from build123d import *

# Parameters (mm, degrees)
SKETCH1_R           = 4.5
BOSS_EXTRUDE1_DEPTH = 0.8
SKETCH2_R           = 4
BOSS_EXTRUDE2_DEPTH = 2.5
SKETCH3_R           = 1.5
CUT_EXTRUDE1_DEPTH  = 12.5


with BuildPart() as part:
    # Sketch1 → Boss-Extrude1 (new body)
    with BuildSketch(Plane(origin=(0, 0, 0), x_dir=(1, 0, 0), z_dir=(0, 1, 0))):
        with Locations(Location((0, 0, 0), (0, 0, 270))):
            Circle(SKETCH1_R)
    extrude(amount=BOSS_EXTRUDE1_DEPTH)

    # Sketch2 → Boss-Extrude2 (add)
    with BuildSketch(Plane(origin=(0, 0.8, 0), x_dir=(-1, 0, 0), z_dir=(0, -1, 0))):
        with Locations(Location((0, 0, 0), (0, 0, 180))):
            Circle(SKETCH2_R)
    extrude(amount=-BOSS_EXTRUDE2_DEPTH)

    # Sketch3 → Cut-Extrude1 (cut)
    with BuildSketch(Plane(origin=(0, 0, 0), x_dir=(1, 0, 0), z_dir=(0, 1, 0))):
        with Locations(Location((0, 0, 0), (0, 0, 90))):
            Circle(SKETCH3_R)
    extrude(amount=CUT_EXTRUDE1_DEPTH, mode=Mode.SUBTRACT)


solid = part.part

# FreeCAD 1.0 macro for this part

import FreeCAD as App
import Part
import Sketcher
from FreeCAD import Vector

doc = App.newDocument("Part")
params = doc.addObject("Spreadsheet::Sheet", "Params")
for row, (alias, value) in enumerate([
    ("sketch1_diameter", "9 mm"),
    ("pad1_length", "0.8 mm"),
    ("sketch2_diameter", "8 mm"),
    ("pad2_length", "2.5 mm"),
    ("sketch3_diameter", "3 mm"),
    ("pocket1_length", "12.5 mm"),
], start=1):
    params.set(f"A{row}", alias)
    params.set(f"B{row}", "=" + value)
    params.setAlias(f"B{row}", alias)

body = doc.addObject("PartDesign::Body", "Body")

sketch1 = doc.addObject("Sketcher::SketchObject", "Sketch")
body.addObject(sketch1)
sketch1.AttachmentSupport = (doc.XZ_Plane, [""])
sketch1.MapMode = "FlatFace"
sketch1.addGeometry(Part.Circle(Vector(0, 0, 0), Vector(0, 0, 1), 4.5), False)
sketch1.addConstraint(Sketcher.Constraint("Coincident", 0, 3, -1, 1))
sketch1.addConstraint(Sketcher.Constraint("Diameter", 0, 9.0))
sketch1.setExpression("Constraints[1]", "Params.sketch1_diameter")
pad1 = doc.addObject("PartDesign::Pad", "Pad")
body.addObject(pad1)
pad1.Profile = sketch1
pad1.setExpression("Length", "Params.pad1_length")
pad1.Reversed = True

sketch2 = doc.addObject("Sketcher::SketchObject", "Sketch001")
body.addObject(sketch2)
sketch2.AttachmentSupport = (doc.XZ_Plane, [""])
sketch2.MapMode = "FlatFace"
sketch2.AttachmentOffset = App.Placement(Vector(0, 0, -0.8), App.Rotation())
sketch2.addGeometry(Part.Circle(Vector(0, 0, 0), Vector(0, 0, 1), 4), False)
sketch2.addConstraint(Sketcher.Constraint("Coincident", 0, 3, -1, 1))
sketch2.addConstraint(Sketcher.Constraint("Diameter", 0, 8.0))
sketch2.setExpression("Constraints[1]", "Params.sketch2_diameter")
pad2 = doc.addObject("PartDesign::Pad", "Pad001")
body.addObject(pad2)
pad2.Profile = sketch2
pad2.setExpression("Length", "Params.pad2_length")
pad2.Reversed = True

sketch3 = doc.addObject("Sketcher::SketchObject", "Sketch002")
body.addObject(sketch3)
sketch3.AttachmentSupport = (doc.XZ_Plane, [""])
sketch3.MapMode = "FlatFace"
sketch3.addGeometry(Part.Circle(Vector(0, 0, 0), Vector(0, 0, 1), 1.5), False)
sketch3.addConstraint(Sketcher.Constraint("Coincident", 0, 3, -1, 1))
sketch3.addConstraint(Sketcher.Constraint("Diameter", 0, 3.0))
sketch3.setExpression("Constraints[1]", "Params.sketch3_diameter")
pocket1 = doc.addObject("PartDesign::Pocket", "Pocket")
body.addObject(pocket1)
pocket1.Profile = sketch3
pocket1.setExpression("Length", "Params.pocket1_length")

doc.recompute()
